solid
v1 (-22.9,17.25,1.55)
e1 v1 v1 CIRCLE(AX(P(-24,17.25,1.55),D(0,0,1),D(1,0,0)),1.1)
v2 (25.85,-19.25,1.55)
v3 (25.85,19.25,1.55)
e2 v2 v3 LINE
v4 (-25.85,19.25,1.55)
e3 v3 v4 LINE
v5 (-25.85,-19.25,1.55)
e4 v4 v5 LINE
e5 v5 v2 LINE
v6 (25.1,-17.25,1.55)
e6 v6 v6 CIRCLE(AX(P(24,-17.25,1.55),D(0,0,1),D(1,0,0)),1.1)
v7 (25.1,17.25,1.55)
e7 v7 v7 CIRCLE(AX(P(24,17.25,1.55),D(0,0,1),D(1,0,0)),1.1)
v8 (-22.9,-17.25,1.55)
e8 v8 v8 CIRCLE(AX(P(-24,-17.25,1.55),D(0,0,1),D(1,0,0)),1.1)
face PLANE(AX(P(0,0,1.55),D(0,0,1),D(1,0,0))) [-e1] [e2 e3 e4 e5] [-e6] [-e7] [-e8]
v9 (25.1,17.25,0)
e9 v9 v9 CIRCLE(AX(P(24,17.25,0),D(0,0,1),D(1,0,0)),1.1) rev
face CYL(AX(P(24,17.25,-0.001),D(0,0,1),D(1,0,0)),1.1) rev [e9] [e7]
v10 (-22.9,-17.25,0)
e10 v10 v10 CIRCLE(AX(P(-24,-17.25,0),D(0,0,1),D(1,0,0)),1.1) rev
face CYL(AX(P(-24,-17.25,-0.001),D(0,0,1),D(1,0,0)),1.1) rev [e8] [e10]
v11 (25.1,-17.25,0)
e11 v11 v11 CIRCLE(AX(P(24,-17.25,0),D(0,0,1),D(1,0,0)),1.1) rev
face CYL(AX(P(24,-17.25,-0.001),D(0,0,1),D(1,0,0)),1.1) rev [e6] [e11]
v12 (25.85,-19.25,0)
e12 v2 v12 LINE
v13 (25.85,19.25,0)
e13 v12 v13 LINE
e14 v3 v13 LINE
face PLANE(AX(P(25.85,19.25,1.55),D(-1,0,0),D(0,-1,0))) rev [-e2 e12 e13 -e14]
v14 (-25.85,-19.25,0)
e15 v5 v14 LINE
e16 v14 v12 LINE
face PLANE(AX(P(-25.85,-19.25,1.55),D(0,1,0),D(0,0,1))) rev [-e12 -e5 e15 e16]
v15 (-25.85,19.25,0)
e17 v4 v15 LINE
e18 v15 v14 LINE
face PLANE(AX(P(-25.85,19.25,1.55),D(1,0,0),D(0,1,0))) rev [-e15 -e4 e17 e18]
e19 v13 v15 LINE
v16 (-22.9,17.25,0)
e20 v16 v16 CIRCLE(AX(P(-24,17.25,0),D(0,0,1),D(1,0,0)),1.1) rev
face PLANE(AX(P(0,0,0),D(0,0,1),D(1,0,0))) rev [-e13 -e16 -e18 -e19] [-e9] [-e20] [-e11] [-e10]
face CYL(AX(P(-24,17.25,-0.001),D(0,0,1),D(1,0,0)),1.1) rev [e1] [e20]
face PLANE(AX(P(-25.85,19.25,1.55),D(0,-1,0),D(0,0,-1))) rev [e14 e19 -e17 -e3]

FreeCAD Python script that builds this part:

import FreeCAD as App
import Part
import Sketcher
Q = App.Units.Quantity


def add_polygon(sketch, points):
    """Adds a closed chain of lines whose ends are joined by coincident constraints."""
    first, n = sketch.GeometryCount, len(points)
    for a, b in zip(points, points[1:] + points[:1]):
        sketch.addGeometry(Part.LineSegment(App.Vector(*a, 0), App.Vector(*b, 0)), False)
    for i in range(n):
        sketch.addConstraint(Sketcher.Constraint("Coincident", first + i, 2, first + (i + 1) % n, 1))

doc = App.newDocument("Part")
body = doc.addObject("PartDesign::Body", "Body")

# Sketch on XY plane
sketch1 = doc.addObject("Sketcher::SketchObject", "Sketch")
body.addObject(sketch1)
sketch1.AttachmentSupport = (doc.XY_Plane, [""])
sketch1.MapMode = "FlatFace"
add_polygon(sketch1, [(-26, 19), (-26, -19), (26, -19), (26, 19)])  # lines 0-3
sketch1.addConstraint([
    Sketcher.Constraint("Vertical", 0),
    Sketcher.Constraint("Horizontal", 1),
    Sketcher.Constraint("Vertical", 2),
    Sketcher.Constraint("Horizontal", 3),
    Sketcher.Constraint("Symmetric", 0, 2, 2, 2, -1, 1),
    Sketcher.Constraint("DistanceX", 1, 1, 1, 2, Q("51.7 mm")),
    Sketcher.Constraint("DistanceY", 0, 2, 0, 1, Q("38.5 mm")),
])
pad1 = doc.addObject("PartDesign::Pad", "Pad")
body.addObject(pad1)
pad1.Profile = sketch1
pad1.Length = 1.55

# Sketch on XY plane
sketch2 = doc.addObject("Sketcher::SketchObject", "Sketch001")
body.addObject(sketch2)
sketch2.AttachmentSupport = (doc.XY_Plane, [""])
sketch2.MapMode = "FlatFace"
sketch2.AttachmentOffset = App.Placement(App.Vector(0, 0, 1.55), App.Rotation())
sketch2.addGeometry(Part.Circle(App.Vector(-24, 17.2, 0), App.Vector(0, 0, 1), 1.1), False)
sketch2.addConstraint([
    Sketcher.Constraint("Diameter", 0, Q("2.2 mm")),
    Sketcher.Constraint("DistanceX", 0, 3, -1, 1, Q("24 mm")),
    Sketcher.Constraint("DistanceY", -1, 1, 0, 3, Q("17.25 mm")),
])
pocket1 = doc.addObject("PartDesign::Pocket", "Pocket")
body.addObject(pocket1)
pocket1.Profile = sketch2
pocket1.Type = "UpToFirst"

# Sketch on XY plane
sketch3 = doc.addObject("Sketcher::SketchObject", "Sketch002")
body.addObject(sketch3)
sketch3.AttachmentSupport = (doc.XY_Plane, [""])
sketch3.MapMode = "FlatFace"
sketch3.AttachmentOffset = App.Placement(App.Vector(0, 0, 1.55), App.Rotation())
sketch3.addGeometry(Part.Circle(App.Vector(24, 17.2, 0), App.Vector(0, 0, 1), 1.1), False)
sketch3.addConstraint([
    Sketcher.Constraint("Diameter", 0, Q("2.2 mm")),
    Sketcher.Constraint("DistanceX", -1, 1, 0, 3, Q("24 mm")),
    Sketcher.Constraint("DistanceY", -1, 1, 0, 3, Q("17.25 mm")),
])
pocket2 = doc.addObject("PartDesign::Pocket", "Pocket001")
body.addObject(pocket2)
pocket2.Profile = sketch3
pocket2.Type = "UpToFirst"

# Sketch on XY plane
sketch4 = doc.addObject("Sketcher::SketchObject", "Sketch003")
body.addObject(sketch4)
sketch4.AttachmentSupport = (doc.XY_Plane, [""])
sketch4.MapMode = "FlatFace"
sketch4.AttachmentOffset = App.Placement(App.Vector(0, 0, 1.55), App.Rotation())
sketch4.addGeometry(Part.Circle(App.Vector(24, -17.2, 0), App.Vector(0, 0, 1), 1.1), False)
sketch4.addConstraint([
    Sketcher.Constraint("Diameter", 0, Q("2.2 mm")),
    Sketcher.Constraint("DistanceX", -1, 1, 0, 3, Q("24 mm")),
    Sketcher.Constraint("DistanceY", 0, 3, -1, 1, Q("17.25 mm")),
])
pocket3 = doc.addObject("PartDesign::Pocket", "Pocket002")
body.addObject(pocket3)
pocket3.Profile = sketch4
pocket3.Type = "UpToFirst"

# Sketch on XY plane
sketch5 = doc.addObject("Sketcher::SketchObject", "Sketch004")
body.addObject(sketch5)
sketch5.AttachmentSupport = (doc.XY_Plane, [""])
sketch5.MapMode = "FlatFace"
sketch5.AttachmentOffset = App.Placement(App.Vector(0, 0, 1.55), App.Rotation())
sketch5.addGeometry(Part.Circle(App.Vector(-24, -17.2, 0), App.Vector(0, 0, 1), 1.1), False)
sketch5.addConstraint([
    Sketcher.Constraint("Diameter", 0, Q("2.2 mm")),
    Sketcher.Constraint("DistanceX", 0, 3, -1, 1, Q("24 mm")),
    Sketcher.Constraint("DistanceY", 0, 3, -1, 1, Q("17.25 mm")),
])
pocket4 = doc.addObject("PartDesign::Pocket", "Pocket003")
body.addObject(pocket4)
pocket4.Profile = sketch5
pocket4.Type = "UpToFirst"

doc.recompute()
